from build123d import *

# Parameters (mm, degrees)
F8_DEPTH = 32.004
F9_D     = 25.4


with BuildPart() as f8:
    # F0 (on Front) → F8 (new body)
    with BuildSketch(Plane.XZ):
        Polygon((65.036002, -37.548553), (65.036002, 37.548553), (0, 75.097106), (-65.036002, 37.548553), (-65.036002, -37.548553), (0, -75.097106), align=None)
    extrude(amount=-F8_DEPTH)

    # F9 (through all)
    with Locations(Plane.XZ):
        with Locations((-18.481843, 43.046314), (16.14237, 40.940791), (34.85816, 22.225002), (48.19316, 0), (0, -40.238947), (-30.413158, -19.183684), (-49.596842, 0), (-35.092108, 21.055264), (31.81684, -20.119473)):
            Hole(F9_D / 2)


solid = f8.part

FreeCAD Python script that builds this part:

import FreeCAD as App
import Part
import Sketcher
Q = App.Units.Quantity


def add_polygon(sketch, points):
    """Adds a closed chain of lines whose ends are joined by coincident constraints."""
    first, n = sketch.GeometryCount, len(points)
    for a, b in zip(points, points[1:] + points[:1]):
        sketch.addGeometry(Part.LineSegment(App.Vector(*a, 0), App.Vector(*b, 0)), False)
    for i in range(n):
        sketch.addConstraint(Sketcher.Constraint("Coincident", first + i, 2, first + (i + 1) % n, 1))

doc = App.newDocument("Part")
params = doc.addObject("Spreadsheet::Sheet", "Params")
for row, (alias, value) in enumerate([
    ("pad1_length", "1.26 in"),
    ("sketch2_diameter", "1 in"),
    ("hole_diameter", "1 in"),
], start=1):
    params.set(f"A{row}", alias)
    params.set(f"B{row}", "=" + value)
    params.setAlias(f"B{row}", alias)

body = doc.addObject("PartDesign::Body", "Body")

sketch1 = body.newObject("Sketcher::SketchObject", "Sketch")
sketch1.AttachmentSupport = (doc.getObject("XZ_Plane"), [""])
sketch1.MapMode = "FlatFace"
add_polygon(sketch1, [(65, -38), (65, 38), (0, 75), (-65, 38), (-65, -38), (0, -75)])
sketch1.addConstraint(Sketcher.Constraint("Vertical", 0))
sketch1.addConstraint(Sketcher.Constraint("Vertical", 3))
sketch1.addConstraint(Sketcher.Constraint("Symmetric", 0, 2, 3, 2, -1, 1))
sketch1.addConstraint(Sketcher.Constraint("Symmetric", 1, 2, 4, 2, -1, 1))
sketch1.addConstraint(Sketcher.Constraint("PointOnObject", 1, 2, -2))
sketch1.addConstraint(Sketcher.Constraint("Parallel", 2, 5))
sketch1.addConstraint(Sketcher.Constraint("Horizontal", 0, 2, 2, 2))
sketch1.addConstraint(Sketcher.Constraint("Angle", 1, Q("150 deg")))
sketch1.addConstraint(Sketcher.Constraint("DistanceX", -1, 1, 0, 2, Q("65.036002 mm")))
sketch1.addConstraint(Sketcher.Constraint("DistanceY", 0, 1, 0, 2, Q("75.097106 mm")))
pad1 = body.newObject("PartDesign::Pad", "Pad")
pad1.Profile = sketch1
pad1.setExpression("Length", "Params.pad1_length")
pad1.Reversed = True

sketch2 = body.newObject("Sketcher::SketchObject", "Sketch001")
sketch2.AttachmentSupport = (doc.getObject("XZ_Plane"), [""])
sketch2.MapMode = "FlatFace"
sketch2.addGeometry(Part.Circle(App.Vector(-18, 43, 0), App.Vector(0, 0, 1), 13), False)
sketch2.addGeometry(Part.Circle(App.Vector(16, 41, 0), App.Vector(0, 0, 1), 13), False)
sketch2.addGeometry(Part.Circle(App.Vector(35, 22, 0), App.Vector(0, 0, 1), 13), False)
sketch2.addGeometry(Part.Circle(App.Vector(48, 0, 0), App.Vector(0, 0, 1), 13), False)
sketch2.addGeometry(Part.Circle(App.Vector(0, -40, 0), App.Vector(0, 0, 1), 13), False)
sketch2.addGeometry(Part.Circle(App.Vector(-30, -19, 0), App.Vector(0, 0, 1), 13), False)
sketch2.addGeometry(Part.Circle(App.Vector(-50, 0, 0), App.Vector(0, 0, 1), 13), False)
sketch2.addGeometry(Part.Circle(App.Vector(-35, 21, 0), App.Vector(0, 0, 1), 13), False)
sketch2.addGeometry(Part.Circle(App.Vector(32, -20, 0), App.Vector(0, 0, 1), 13), False)
sketch2.addConstraint(Sketcher.Constraint("Equal", 0, 1))
sketch2.addConstraint(Sketcher.Constraint("Equal", 1, 2))
sketch2.addConstraint(Sketcher.Constraint("Equal", 2, 3))
sketch2.addConstraint(Sketcher.Constraint("Equal", 3, 4))
sketch2.addConstraint(Sketcher.Constraint("Equal", 4, 5))
sketch2.addConstraint(Sketcher.Constraint("Equal", 5, 6))
sketch2.addConstraint(Sketcher.Constraint("Equal", 6, 7))
sketch2.addConstraint(Sketcher.Constraint("Equal", 7, 8))
sketch2.addConstraint(Sketcher.Constraint("PointOnObject", 3, 3, -1))
sketch2.addConstraint(Sketcher.Constraint("PointOnObject", 4, 3, -2))
sketch2.addConstraint(Sketcher.Constraint("PointOnObject", 6, 3, -1))
sketch2.addConstraint(Sketcher.Constraint("Diameter", 0, Q("1 in")))
sketch2.addConstraint(Sketcher.Constraint("DistanceX", 0, 3, 2, 3, Q("2.1000001 in")))
sketch2.addConstraint(Sketcher.Constraint("DistanceY", 5, 3, 0, 3, Q("2.4499999 in")))
sketch2.addConstraint(Sketcher.Constraint("DistanceX", 5, 3, 8, 3, Q("2.4499999 in")))
sketch2.addConstraint(Sketcher.Constraint("DistanceY", -1, 1, 2, 3, Q("0.8750001 in")))
sketch2.addConstraint(Sketcher.Constraint("DistanceX", 2, 3, 3, 3, Q("0.525 in")))
sketch2.addConstraint(Sketcher.Constraint("DistanceX", 6, 3, 0, 3, Q("1.225 in")))
sketch2.addConstraint(Sketcher.Constraint("DistanceX", -1, 1, 1, 3, Q("16.14237 mm")))
sketch2.addConstraint(Sketcher.Constraint("DistanceY", -1, 1, 1, 3, Q("40.940791 mm")))
sketch2.addConstraint(Sketcher.Constraint("DistanceX", -1, 1, 2, 3, Q("34.85816 mm")))
sketch2.addConstraint(Sketcher.Constraint("DistanceX", 7, 3, -1, 1, Q("35.092108 mm")))
sketch2.addConstraint(Sketcher.Constraint("DistanceX", -1, 1, 8, 3, Q("31.81684 mm")))
sketch2.addConstraint(Sketcher.Constraint("DistanceY", 4, 3, 2, 3, Q("62.463949 mm")))
sketch2.addConstraint(Sketcher.Constraint("DistanceY", 4, 3, 0, 3, Q("83.285261 mm")))
sketch2.addConstraint(Sketcher.Constraint("DistanceY", 7, 3, 0, 3, Q("21.99105 mm")))
sketch2.addConstraint(Sketcher.Constraint("DistanceY", 8, 3, 5, 3, Q("0.935789 mm")))
sketch2.setExpression("Constraints[11]", "Params.sketch2_diameter")
doc.recompute()
hole = body.newObject("PartDesign::Hole", "Hole")
hole.Profile = sketch2
hole.ThreadType = "None"
hole.setExpression("Diameter", "Params.hole_diameter")
hole.DepthType = "ThroughAll"

doc.recompute()
